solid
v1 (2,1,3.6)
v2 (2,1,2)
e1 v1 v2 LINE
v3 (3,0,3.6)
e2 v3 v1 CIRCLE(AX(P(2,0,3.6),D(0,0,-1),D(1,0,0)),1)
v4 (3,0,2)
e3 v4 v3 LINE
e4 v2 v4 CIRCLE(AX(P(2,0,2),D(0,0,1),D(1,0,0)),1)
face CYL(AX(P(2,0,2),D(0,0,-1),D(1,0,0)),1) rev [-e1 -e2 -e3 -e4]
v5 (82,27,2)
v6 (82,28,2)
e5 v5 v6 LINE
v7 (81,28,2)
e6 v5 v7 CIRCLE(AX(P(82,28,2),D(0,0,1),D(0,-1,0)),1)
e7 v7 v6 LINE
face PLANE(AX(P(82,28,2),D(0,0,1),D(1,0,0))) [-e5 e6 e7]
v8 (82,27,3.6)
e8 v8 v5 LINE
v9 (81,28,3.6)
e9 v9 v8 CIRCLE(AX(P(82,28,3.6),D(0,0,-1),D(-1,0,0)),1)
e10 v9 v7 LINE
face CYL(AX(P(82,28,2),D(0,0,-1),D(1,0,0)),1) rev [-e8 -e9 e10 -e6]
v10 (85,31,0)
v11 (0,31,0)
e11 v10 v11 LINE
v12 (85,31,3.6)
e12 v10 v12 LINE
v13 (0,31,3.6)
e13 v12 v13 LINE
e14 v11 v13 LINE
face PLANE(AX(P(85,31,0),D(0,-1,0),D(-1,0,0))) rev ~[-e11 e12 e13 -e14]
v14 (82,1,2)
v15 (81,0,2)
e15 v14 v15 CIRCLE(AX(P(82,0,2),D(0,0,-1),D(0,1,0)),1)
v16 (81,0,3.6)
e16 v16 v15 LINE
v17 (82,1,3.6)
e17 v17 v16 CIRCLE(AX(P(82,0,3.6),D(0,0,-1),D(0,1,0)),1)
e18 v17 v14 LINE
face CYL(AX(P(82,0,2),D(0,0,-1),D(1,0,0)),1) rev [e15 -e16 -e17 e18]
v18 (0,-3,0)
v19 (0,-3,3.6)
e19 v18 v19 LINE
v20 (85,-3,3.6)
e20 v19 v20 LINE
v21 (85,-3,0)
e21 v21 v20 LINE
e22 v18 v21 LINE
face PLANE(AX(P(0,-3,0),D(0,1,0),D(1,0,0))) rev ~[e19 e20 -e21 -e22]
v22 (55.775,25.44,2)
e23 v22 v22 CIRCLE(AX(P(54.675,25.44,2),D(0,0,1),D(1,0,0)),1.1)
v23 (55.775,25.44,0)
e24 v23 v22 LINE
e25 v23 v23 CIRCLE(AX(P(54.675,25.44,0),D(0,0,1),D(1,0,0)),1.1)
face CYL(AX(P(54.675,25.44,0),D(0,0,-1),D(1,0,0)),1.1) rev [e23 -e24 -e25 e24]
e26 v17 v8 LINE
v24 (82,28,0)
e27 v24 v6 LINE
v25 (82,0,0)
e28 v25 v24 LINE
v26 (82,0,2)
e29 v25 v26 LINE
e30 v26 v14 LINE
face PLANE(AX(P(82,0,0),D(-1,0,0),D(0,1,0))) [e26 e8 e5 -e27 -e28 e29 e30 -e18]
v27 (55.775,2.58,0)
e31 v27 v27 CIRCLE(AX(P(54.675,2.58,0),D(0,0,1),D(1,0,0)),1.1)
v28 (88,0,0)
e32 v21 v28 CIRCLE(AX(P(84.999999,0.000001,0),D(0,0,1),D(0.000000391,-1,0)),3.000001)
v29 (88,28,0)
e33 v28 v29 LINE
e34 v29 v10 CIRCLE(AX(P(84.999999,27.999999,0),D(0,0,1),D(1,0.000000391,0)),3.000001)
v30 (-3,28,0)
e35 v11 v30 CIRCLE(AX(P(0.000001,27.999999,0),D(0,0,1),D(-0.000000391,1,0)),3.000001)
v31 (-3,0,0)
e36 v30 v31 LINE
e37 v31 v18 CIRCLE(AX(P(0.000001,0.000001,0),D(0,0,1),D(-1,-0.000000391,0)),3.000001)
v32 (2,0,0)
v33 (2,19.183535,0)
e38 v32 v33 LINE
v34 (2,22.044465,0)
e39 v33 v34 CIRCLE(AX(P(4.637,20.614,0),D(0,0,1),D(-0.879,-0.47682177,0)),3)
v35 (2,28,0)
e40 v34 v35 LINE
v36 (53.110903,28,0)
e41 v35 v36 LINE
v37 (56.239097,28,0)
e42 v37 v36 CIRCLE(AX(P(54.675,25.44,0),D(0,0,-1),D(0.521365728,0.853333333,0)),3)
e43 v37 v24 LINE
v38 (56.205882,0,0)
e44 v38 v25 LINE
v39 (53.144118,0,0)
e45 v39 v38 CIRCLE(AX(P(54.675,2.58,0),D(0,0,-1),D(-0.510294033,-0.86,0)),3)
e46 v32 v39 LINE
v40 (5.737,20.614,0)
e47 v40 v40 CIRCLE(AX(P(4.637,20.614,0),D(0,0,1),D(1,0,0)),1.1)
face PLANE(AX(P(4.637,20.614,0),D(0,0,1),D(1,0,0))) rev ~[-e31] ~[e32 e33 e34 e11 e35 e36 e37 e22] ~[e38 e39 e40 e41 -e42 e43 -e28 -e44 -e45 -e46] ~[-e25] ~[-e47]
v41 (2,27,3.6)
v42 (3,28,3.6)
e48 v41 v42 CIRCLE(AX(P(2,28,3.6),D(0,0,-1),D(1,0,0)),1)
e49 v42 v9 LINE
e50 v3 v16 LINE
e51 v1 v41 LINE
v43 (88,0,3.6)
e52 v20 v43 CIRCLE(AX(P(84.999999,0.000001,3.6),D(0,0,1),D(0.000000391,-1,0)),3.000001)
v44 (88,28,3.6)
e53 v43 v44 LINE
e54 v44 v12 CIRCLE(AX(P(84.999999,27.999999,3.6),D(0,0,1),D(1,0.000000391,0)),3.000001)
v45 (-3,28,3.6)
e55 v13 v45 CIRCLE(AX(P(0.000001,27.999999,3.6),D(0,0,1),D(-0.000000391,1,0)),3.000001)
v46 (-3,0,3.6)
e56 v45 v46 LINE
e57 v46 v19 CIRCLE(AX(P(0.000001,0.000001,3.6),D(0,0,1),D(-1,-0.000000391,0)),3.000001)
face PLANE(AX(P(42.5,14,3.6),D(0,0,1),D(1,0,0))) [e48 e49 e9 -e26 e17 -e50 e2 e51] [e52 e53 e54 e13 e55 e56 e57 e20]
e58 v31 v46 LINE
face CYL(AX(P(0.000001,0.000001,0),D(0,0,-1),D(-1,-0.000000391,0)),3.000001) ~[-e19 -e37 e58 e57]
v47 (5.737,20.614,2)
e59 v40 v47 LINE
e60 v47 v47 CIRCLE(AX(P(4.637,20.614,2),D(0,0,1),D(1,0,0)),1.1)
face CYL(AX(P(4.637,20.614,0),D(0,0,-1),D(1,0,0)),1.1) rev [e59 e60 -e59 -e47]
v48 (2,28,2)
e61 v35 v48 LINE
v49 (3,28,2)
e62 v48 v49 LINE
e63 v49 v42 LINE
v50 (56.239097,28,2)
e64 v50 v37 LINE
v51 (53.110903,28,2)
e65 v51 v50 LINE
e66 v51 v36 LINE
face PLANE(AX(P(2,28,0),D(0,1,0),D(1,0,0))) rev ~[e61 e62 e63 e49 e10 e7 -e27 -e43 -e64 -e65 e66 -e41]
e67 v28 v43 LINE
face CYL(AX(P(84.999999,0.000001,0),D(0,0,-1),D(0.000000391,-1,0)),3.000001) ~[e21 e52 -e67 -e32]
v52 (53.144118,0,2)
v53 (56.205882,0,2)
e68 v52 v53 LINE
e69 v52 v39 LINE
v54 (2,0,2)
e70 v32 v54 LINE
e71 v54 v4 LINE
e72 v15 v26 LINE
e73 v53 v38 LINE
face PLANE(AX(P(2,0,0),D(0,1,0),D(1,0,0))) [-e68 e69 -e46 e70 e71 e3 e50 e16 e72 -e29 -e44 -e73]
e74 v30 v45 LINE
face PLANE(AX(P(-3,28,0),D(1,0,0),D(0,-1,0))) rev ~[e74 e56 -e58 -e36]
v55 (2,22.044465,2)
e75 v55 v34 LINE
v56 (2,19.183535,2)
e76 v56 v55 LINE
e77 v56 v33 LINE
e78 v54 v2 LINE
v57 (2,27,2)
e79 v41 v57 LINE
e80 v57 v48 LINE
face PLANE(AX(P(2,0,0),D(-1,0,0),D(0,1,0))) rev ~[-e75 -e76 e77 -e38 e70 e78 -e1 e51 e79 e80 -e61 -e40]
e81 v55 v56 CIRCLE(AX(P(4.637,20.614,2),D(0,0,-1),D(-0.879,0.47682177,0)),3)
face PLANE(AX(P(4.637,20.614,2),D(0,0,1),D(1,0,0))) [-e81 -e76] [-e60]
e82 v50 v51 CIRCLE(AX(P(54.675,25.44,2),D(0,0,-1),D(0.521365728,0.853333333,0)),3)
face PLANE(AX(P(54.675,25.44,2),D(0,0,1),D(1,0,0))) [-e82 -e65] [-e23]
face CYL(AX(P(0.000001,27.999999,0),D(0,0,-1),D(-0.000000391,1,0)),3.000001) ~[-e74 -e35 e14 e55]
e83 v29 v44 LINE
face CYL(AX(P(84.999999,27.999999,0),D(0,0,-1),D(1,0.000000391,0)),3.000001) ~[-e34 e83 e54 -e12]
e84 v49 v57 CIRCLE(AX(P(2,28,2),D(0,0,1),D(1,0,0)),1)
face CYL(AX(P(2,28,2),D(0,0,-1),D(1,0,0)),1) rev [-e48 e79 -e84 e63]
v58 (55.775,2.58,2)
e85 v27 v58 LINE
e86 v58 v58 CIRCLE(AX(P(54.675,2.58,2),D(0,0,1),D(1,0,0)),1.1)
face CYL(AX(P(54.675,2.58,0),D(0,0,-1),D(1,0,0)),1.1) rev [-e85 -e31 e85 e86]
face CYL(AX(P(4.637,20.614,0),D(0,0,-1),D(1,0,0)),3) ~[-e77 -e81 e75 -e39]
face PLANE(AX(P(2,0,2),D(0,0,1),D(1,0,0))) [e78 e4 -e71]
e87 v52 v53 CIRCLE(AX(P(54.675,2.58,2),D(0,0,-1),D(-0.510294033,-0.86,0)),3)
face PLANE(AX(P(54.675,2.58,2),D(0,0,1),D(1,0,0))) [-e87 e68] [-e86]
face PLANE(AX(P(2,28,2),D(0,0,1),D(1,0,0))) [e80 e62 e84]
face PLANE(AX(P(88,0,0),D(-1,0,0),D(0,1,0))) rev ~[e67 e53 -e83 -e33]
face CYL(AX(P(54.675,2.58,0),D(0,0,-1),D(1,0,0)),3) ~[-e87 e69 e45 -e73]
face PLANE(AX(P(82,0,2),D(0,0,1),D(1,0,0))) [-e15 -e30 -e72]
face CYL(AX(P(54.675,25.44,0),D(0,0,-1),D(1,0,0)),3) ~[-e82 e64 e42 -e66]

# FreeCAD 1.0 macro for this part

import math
import FreeCAD as App
import Part
import Sketcher
from FreeCAD import Vector

doc = App.newDocument("Part")
body = doc.addObject("PartDesign::Body", "Body")

sketch1 = body.newObject("Sketcher::SketchObject", "Sketch")
sketch1.AttachmentSupport = (doc.getObject("XY_Plane"), [""])
sketch1.MapMode = "FlatFace"
sketch1.addGeometry(Part.LineSegment(Vector(0, -3, 0), Vector(85, -3, 0)), False)
sketch1.addGeometry(Part.ArcOfCircle(Part.Circle(Vector(85, 0, 0), Vector(0, 0, 1), 3), math.radians(-90), math.radians(0)), False)
sketch1.addGeometry(Part.LineSegment(Vector(88, 0, 0), Vector(88, 28, 0)), False)
sketch1.addGeometry(Part.ArcOfCircle(Part.Circle(Vector(85, 28, 0), Vector(0, 0, 1), 3), math.radians(0), math.radians(90)), False)
sketch1.addGeometry(Part.LineSegment(Vector(85, 31, 0), Vector(0, 31, 0)), False)
sketch1.addGeometry(Part.ArcOfCircle(Part.Circle(Vector(0, 28, 0), Vector(0, 0, 1), 3), math.radians(90), math.radians(180)), False)
sketch1.addGeometry(Part.LineSegment(Vector(-3, 28, 0), Vector(-3, 0, 0)), False)
sketch1.addGeometry(Part.ArcOfCircle(Part.Circle(Vector(0, 0, 0), Vector(0, 0, 1), 3), math.radians(-180), math.radians(-90)), False)
sketch1.addGeometry(Part.LineSegment(Vector(82, 0, 0), Vector(2, 0, 0)), False)
sketch1.addGeometry(Part.LineSegment(Vector(2, 0, 0), Vector(2, 28, 0)), False)
sketch1.addGeometry(Part.LineSegment(Vector(2, 28, 0), Vector(82, 28, 0)), False)
sketch1.addGeometry(Part.LineSegment(Vector(82, 28, 0), Vector(82, 0, 0)), False)
sketch1.addConstraint(Sketcher.Constraint("Tangent", 0, 2, 1, 1))
sketch1.addConstraint(Sketcher.Constraint("Tangent", 1, 2, 2, 1))
sketch1.addConstraint(Sketcher.Constraint("Tangent", 2, 2, 3, 1))
sketch1.addConstraint(Sketcher.Constraint("Tangent", 3, 2, 4, 1))
sketch1.addConstraint(Sketcher.Constraint("Tangent", 4, 2, 5, 1))
sketch1.addConstraint(Sketcher.Constraint("Tangent", 5, 2, 6, 1))
sketch1.addConstraint(Sketcher.Constraint("Tangent", 6, 2, 7, 1))
sketch1.addConstraint(Sketcher.Constraint("Tangent", 7, 2, 0, 1))
sketch1.addConstraint(Sketcher.Constraint("Coincident", 8, 2, 9, 1))
sketch1.addConstraint(Sketcher.Constraint("Coincident", 9, 2, 10, 1))
sketch1.addConstraint(Sketcher.Constraint("Coincident", 10, 2, 11, 1))
sketch1.addConstraint(Sketcher.Constraint("Coincident", 11, 2, 8, 1))
sketch1.addConstraint(Sketcher.Constraint("Horizontal", 0))
sketch1.addConstraint(Sketcher.Constraint("Vertical", 2))
sketch1.addConstraint(Sketcher.Constraint("Horizontal", 4))
sketch1.addConstraint(Sketcher.Constraint("Vertical", 6))
sketch1.addConstraint(Sketcher.Constraint("Horizontal", 8))
sketch1.addConstraint(Sketcher.Constraint("Vertical", 9))
sketch1.addConstraint(Sketcher.Constraint("Horizontal", 10))
sketch1.addConstraint(Sketcher.Constraint("Vertical", 11))
sketch1.addConstraint(Sketcher.Constraint("Coincident", 7, 3, -1, 1))
sketch1.addConstraint(Sketcher.Constraint("Equal", 1, 3))
sketch1.addConstraint(Sketcher.Constraint("Equal", 3, 5))
sketch1.addConstraint(Sketcher.Constraint("Equal", 5, 7))
sketch1.addConstraint(Sketcher.Constraint("PointOnObject", 8, 2, -1))
sketch1.addConstraint(Sketcher.Constraint("Horizontal", 5, 2, 9, 2))
sketch1.addConstraint(Sketcher.Constraint("Radius", 1, 3.000001))
sketch1.addConstraint(Sketcher.Constraint("DistanceX", 0, 1, 0, 2, 85.0))
sketch1.addConstraint(Sketcher.Constraint("DistanceX", 8, 2, 8, 1, 80.0))
sketch1.addConstraint(Sketcher.Constraint("DistanceY", 2, 1, 2, 2, 28.0))
sketch1.addConstraint(Sketcher.Constraint("DistanceX", -1, 1, 8, 2, 2.0))
pad1 = body.newObject("PartDesign::Pad", "Pad")
pad1.Profile = sketch1
pad1.Length = 3.6

sketch2 = body.newObject("Sketcher::SketchObject", "Sketch001")
sketch2.AttachmentSupport = (doc.getObject("XY_Plane"), [""])
sketch2.MapMode = "FlatFace"
sketch2.addGeometry(Part.Circle(Vector(4.6, 20.6, 0), Vector(0, 0, 1), 3), False)
sketch2.addGeometry(Part.Circle(Vector(4.6, 20.6, 0), Vector(0, 0, 1), 1.1), False)
sketch2.addGeometry(Part.Circle(Vector(54.7, 25.4, 0), Vector(0, 0, 1), 3), False)
sketch2.addGeometry(Part.Circle(Vector(54.7, 25.4, 0), Vector(0, 0, 1), 1.1), False)
sketch2.addGeometry(Part.Circle(Vector(54.7, 2.6, 0), Vector(0, 0, 1), 3), False)
sketch2.addGeometry(Part.Circle(Vector(54.7, 2.6, 0), Vector(0, 0, 1), 1.1), False)
sketch2.addConstraint(Sketcher.Constraint("Coincident", 1, 3, 0, 3))
sketch2.addConstraint(Sketcher.Constraint("Coincident", 3, 3, 2, 3))
sketch2.addConstraint(Sketcher.Constraint("Coincident", 5, 3, 4, 3))
sketch2.addConstraint(Sketcher.Constraint("Equal", 0, 2))
sketch2.addConstraint(Sketcher.Constraint("Equal", 1, 3))
sketch2.addConstraint(Sketcher.Constraint("Equal", 2, 4))
sketch2.addConstraint(Sketcher.Constraint("Equal", 3, 5))
sketch2.addConstraint(Sketcher.Constraint("Vertical", 3, 3, 4, 3))
sketch2.addConstraint(Sketcher.Constraint("Diameter", 0, 6.0))
sketch2.addConstraint(Sketcher.Constraint("Diameter", 1, 2.2))
sketch2.addConstraint(Sketcher.Constraint("DistanceY", -1, 1, 2, 3, 25.44))
sketch2.addConstraint(Sketcher.Constraint("DistanceY", -1, 1, 4, 3, 2.58))
sketch2.addConstraint(Sketcher.Constraint("DistanceX", -1, 1, 0, 3, 4.637))
sketch2.addConstraint(Sketcher.Constraint("DistanceY", -1, 1, 0, 3, 20.614))
sketch2.addConstraint(Sketcher.Constraint("DistanceX", -1, 1, 2, 3, 54.675))
pad2 = body.newObject("PartDesign::Pad", "Pad001")
pad2.Profile = sketch2
pad2.Length = 2

sketch3 = body.newObject("Sketcher::SketchObject", "Sketch002")
sketch3.AttachmentSupport = (doc.getObject("XY_Plane"), [""])
sketch3.MapMode = "FlatFace"
sketch3.AttachmentOffset = App.Placement(Vector(0, 0, 2), App.Rotation())
sketch3.addGeometry(Part.Circle(Vector(2, 28, 0), Vector(0, 0, 1), 1), False)
sketch3.addGeometry(Part.Circle(Vector(82, 28, 0), Vector(0, 0, 1), 1), False)
sketch3.addGeometry(Part.Circle(Vector(82, 0, 0), Vector(0, 0, 1), 1), False)
sketch3.addGeometry(Part.Circle(Vector(2, 0, 0), Vector(0, 0, 1), 1), False)
sketch3.addConstraint(Sketcher.Constraint("Equal", 0, 1))
sketch3.addConstraint(Sketcher.Constraint("Equal", 1, 2))
sketch3.addConstraint(Sketcher.Constraint("Equal", 2, 3))
sketch3.addConstraint(Sketcher.Constraint("PointOnObject", 2, 3, -1))
sketch3.addConstraint(Sketcher.Constraint("PointOnObject", 3, 3, -1))
sketch3.addConstraint(Sketcher.Constraint("Horizontal", 0, 3, 1, 3))
sketch3.addConstraint(Sketcher.Constraint("Vertical", 1, 3, 2, 3))
sketch3.addConstraint(Sketcher.Constraint("Vertical", 0, 3, 3, 3))
sketch3.addConstraint(Sketcher.Constraint("Diameter", 0, 2.0))
sketch3.addConstraint(Sketcher.Constraint("DistanceX", -1, 1, 0, 3, 2.0))
sketch3.addConstraint(Sketcher.Constraint("DistanceY", -1, 1, 0, 3, 28.0))
sketch3.addConstraint(Sketcher.Constraint("DistanceX", -1, 1, 1, 3, 82.0))
pocket1 = body.newObject("PartDesign::Pocket", "Pocket")
pocket1.Profile = sketch3
pocket1.Length = 5
pocket1.Reversed = True

doc.recompute()
